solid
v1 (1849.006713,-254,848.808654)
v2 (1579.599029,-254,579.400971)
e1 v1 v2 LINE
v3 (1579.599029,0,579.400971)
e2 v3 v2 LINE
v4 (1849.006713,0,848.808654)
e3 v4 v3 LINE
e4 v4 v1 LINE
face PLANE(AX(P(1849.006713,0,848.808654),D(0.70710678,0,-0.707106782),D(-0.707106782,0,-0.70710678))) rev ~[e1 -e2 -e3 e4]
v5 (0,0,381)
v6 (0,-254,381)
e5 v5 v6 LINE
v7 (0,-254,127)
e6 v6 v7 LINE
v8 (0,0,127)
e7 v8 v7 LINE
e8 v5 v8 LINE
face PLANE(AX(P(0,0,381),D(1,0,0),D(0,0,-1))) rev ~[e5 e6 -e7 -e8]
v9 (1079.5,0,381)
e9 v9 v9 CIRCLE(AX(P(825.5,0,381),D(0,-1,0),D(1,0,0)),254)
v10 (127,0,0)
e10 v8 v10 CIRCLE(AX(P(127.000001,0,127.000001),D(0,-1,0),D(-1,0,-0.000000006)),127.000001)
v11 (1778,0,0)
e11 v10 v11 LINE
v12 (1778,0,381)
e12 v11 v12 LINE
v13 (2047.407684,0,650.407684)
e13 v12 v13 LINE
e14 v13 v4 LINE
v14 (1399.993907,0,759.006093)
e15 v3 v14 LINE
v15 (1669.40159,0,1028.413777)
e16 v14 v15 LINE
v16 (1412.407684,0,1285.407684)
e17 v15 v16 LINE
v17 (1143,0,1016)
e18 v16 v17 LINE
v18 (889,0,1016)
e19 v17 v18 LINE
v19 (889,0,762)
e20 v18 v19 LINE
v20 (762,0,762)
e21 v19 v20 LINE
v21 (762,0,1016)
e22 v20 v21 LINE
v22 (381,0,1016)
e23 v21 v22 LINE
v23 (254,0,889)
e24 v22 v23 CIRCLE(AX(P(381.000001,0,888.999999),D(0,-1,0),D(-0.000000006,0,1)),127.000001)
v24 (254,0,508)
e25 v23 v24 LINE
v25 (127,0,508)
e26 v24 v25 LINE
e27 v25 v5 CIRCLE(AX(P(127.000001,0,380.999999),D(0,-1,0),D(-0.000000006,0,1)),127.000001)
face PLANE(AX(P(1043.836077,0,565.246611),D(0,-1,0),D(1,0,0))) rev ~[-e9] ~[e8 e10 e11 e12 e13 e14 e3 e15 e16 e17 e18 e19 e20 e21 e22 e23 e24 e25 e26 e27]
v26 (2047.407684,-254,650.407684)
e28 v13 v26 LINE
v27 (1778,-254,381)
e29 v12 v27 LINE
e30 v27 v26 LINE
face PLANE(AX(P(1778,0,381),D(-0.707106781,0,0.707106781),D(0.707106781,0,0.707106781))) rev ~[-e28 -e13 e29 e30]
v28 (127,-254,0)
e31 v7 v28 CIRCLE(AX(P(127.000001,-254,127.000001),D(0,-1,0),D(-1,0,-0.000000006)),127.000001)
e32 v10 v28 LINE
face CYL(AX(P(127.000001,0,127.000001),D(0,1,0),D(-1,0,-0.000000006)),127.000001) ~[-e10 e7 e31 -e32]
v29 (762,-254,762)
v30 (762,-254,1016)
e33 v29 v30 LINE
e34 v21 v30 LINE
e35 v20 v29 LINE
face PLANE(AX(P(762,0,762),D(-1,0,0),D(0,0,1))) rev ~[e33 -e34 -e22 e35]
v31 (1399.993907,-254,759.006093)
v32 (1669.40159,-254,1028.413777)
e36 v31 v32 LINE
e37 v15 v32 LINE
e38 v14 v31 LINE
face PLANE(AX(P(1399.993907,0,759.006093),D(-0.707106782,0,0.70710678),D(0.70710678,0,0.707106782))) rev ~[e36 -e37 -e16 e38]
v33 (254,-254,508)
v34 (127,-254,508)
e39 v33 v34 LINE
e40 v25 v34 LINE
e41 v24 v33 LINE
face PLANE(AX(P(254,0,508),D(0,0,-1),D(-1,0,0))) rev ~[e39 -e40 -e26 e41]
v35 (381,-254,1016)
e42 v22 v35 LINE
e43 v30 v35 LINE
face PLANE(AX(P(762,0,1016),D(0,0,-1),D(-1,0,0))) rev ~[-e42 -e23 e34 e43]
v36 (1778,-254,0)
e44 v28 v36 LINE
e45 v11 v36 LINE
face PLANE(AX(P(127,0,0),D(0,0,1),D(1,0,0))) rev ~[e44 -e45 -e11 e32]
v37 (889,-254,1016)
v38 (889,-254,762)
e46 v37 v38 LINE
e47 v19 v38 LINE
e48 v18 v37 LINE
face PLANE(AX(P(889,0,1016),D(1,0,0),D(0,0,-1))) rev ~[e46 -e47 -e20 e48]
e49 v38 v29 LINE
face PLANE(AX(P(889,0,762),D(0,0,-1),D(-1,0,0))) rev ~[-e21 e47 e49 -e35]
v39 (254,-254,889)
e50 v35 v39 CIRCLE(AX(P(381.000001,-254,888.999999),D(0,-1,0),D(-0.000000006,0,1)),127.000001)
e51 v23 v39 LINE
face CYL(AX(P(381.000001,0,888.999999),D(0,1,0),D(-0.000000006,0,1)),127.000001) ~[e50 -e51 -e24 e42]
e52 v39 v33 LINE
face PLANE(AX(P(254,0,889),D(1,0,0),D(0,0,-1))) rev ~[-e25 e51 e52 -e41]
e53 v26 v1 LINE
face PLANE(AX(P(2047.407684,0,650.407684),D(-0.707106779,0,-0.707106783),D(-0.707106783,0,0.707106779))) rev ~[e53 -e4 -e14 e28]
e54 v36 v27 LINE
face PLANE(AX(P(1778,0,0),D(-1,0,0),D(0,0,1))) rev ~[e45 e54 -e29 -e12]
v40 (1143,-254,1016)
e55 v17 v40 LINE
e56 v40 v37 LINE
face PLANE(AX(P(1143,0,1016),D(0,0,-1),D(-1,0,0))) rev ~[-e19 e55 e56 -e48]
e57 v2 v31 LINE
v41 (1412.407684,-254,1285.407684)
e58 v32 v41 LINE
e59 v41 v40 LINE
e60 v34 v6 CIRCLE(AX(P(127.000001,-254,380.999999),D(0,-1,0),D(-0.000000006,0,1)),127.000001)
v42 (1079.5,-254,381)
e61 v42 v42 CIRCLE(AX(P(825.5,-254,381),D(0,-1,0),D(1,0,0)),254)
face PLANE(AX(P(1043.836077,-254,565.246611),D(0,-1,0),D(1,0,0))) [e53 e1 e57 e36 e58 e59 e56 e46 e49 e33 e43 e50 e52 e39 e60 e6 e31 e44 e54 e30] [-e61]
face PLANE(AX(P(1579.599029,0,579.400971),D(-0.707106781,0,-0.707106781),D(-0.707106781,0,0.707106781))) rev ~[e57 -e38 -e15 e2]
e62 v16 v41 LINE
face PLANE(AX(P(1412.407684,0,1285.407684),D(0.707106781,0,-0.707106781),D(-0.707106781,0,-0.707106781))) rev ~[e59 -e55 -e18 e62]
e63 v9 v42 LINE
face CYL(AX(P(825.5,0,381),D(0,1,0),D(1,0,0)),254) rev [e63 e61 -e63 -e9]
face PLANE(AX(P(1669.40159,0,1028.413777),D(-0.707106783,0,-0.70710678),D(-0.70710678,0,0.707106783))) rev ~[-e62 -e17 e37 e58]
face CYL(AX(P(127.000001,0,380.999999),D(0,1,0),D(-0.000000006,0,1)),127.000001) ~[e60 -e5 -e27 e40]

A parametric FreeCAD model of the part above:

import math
import FreeCAD as App
import Part
import Sketcher
from FreeCAD import Vector
Q = App.Units.Quantity

doc = App.newDocument("Part")
params = doc.addObject("Spreadsheet::Sheet", "Params")
for row, (alias, value) in enumerate([
    ("sketch1_diameter", "20 in"),
    ("sketch1_radius", "5 in"),
    ("sketch1_width", "65 in"),
    ("sketch1_width2", "10 in"),
    ("sketch1_width3", "5 in"),
    ("pad1_length", "10 in"),
], start=1):
    params.set(f"A{row}", alias)
    params.set(f"B{row}", "=" + value)
    params.setAlias(f"B{row}", alias)

body = doc.addObject("PartDesign::Body", "Body")

# Sketch on XZ plane
sketch1 = body.newObject("Sketcher::SketchObject", "Sketch")
sketch1.AttachmentSupport = (doc.getObject("XZ_Plane"), [""])
sketch1.MapMode = "FlatFace"
sketch1.addGeometry([
    Part.ArcOfCircle(Part.Circle(Vector(127.000001, 127.000001, 0), Vector(0, 0, 1), 127.000001), math.radians(-180), math.radians(-90)),  # 0
    Part.LineSegment(Vector(127, 0, 0), Vector(1778, 0, 0)),  # 1
    Part.LineSegment(Vector(1778, 0, 0), Vector(1778, 381, 0)),  # 2
    Part.LineSegment(Vector(1778, 381, 0), Vector(2047.407684, 650.407684, 0)),  # 3
    Part.LineSegment(Vector(2047.407684, 650.407684, 0), Vector(1849.006713, 848.808654, 0)),  # 4
    Part.LineSegment(Vector(1849.006713, 848.808654, 0), Vector(1579.599029, 579.400971, 0)),  # 5
    Part.LineSegment(Vector(1579.599029, 579.400971, 0), Vector(1399.993907, 759.006093, 0)),  # 6
    Part.LineSegment(Vector(1399.993907, 759.006093, 0), Vector(1669.40159, 1028.413777, 0)),  # 7
    Part.LineSegment(Vector(1669.40159, 1028.413777, 0), Vector(1412.407684, 1285.407684, 0)),  # 8
    Part.LineSegment(Vector(1412.407684, 1285.407684, 0), Vector(1143, 1016, 0)),  # 9
    Part.LineSegment(Vector(1143, 1016, 0), Vector(889, 1016, 0)),  # 10
    Part.LineSegment(Vector(889, 1016, 0), Vector(889, 762, 0)),  # 11
    Part.LineSegment(Vector(889, 762, 0), Vector(762, 762, 0)),  # 12
    Part.LineSegment(Vector(762, 762, 0), Vector(762, 1016, 0)),  # 13
    Part.LineSegment(Vector(762, 1016, 0), Vector(381, 1016, 0)),  # 14
    Part.ArcOfCircle(Part.Circle(Vector(381.000001, 888.999999, 0), Vector(0, 0, 1), 127.000001), math.radians(90), math.radians(180)),  # 15
    Part.LineSegment(Vector(254, 889, 0), Vector(254, 508, 0)),  # 16
    Part.LineSegment(Vector(254, 508, 0), Vector(127, 508, 0)),  # 17
    Part.ArcOfCircle(Part.Circle(Vector(127.000001, 380.999999, 0), Vector(0, 0, 1), 127.000001), math.radians(90), math.radians(180)),  # 18
    Part.LineSegment(Vector(0, 381, 0), Vector(0, 127, 0)),  # 19
    Part.Circle(Vector(825.5, 381, 0), Vector(0, 0, 1), 254),  # 20
], False)
sketch1.addConstraint([
    Sketcher.Constraint("Tangent", 0, 2, 1, 1),
    Sketcher.Constraint("Coincident", 1, 2, 2, 1),
    Sketcher.Constraint("Coincident", 2, 2, 3, 1),
    Sketcher.Constraint("Coincident", 3, 2, 4, 1),
    Sketcher.Constraint("Coincident", 4, 2, 5, 1),
    Sketcher.Constraint("Coincident", 5, 2, 6, 1),
    Sketcher.Constraint("Coincident", 6, 2, 7, 1),
    Sketcher.Constraint("Coincident", 7, 2, 8, 1),
    Sketcher.Constraint("Coincident", 8, 2, 9, 1),
    Sketcher.Constraint("Coincident", 9, 2, 10, 1),
    Sketcher.Constraint("Coincident", 10, 2, 11, 1),
    Sketcher.Constraint("Coincident", 11, 2, 12, 1),
    Sketcher.Constraint("Coincident", 12, 2, 13, 1),
    Sketcher.Constraint("Coincident", 13, 2, 14, 1),
    Sketcher.Constraint("Tangent", 14, 2, 15, 1),
    Sketcher.Constraint("Tangent", 15, 2, 16, 1),
    Sketcher.Constraint("Coincident", 16, 2, 17, 1),
    Sketcher.Constraint("Tangent", 17, 2, 18, 1),
    Sketcher.Constraint("Tangent", 18, 2, 19, 1),
    Sketcher.Constraint("Tangent", 19, 2, 0, 1),
    Sketcher.Constraint("Horizontal", 1),
    Sketcher.Constraint("Vertical", 2),
    Sketcher.Constraint("Horizontal", 10),
    Sketcher.Constraint("Vertical", 11),
    Sketcher.Constraint("Horizontal", 12),
    Sketcher.Constraint("Vertical", 13),
    Sketcher.Constraint("Horizontal", 14),
    Sketcher.Constraint("Vertical", 16),
    Sketcher.Constraint("Horizontal", 17),
    Sketcher.Constraint("Vertical", 19),
    Sketcher.Constraint("Equal", 0, 15),
    Sketcher.Constraint("Equal", 15, 18),
    Sketcher.Constraint("PointOnObject", 0, 2, -1),
    Sketcher.Constraint("PointOnObject", 18, 2, -2),
    Sketcher.Constraint("Perpendicular", 3, 4),
    Sketcher.Constraint("Perpendicular", 4, 5),
    Sketcher.Constraint("Perpendicular", 5, 6),
    Sketcher.Constraint("Perpendicular", 6, 7),
    Sketcher.Constraint("Perpendicular", 7, 8),
    Sketcher.Constraint("Perpendicular", 8, 9),
    Sketcher.Constraint("Horizontal", 18, 3, 20, 3),
    Sketcher.Constraint("Horizontal", 20, 3, 2, 2),
    Sketcher.Constraint("Horizontal", 10, 2, 13, 2),
    Sketcher.Constraint("Equal", 12, 17),
    Sketcher.Constraint("Equal", 14, 2),
    Sketcher.Constraint("Equal", 10, 11),
    Sketcher.Constraint("Equal", 2, 16),
    Sketcher.Constraint("Equal", 13, 19),
    Sketcher.Constraint("Equal", 3, 5),
    Sketcher.Constraint("Equal", 5, 7),
    Sketcher.Constraint("Equal", 7, 9),
    Sketcher.Constraint("Diameter", 20, Q("20 in")),
    Sketcher.Constraint("Radius", 0, Q("5 in")),
    Sketcher.Constraint("DistanceX", 1, 1, 1, 2, Q("65 in")),
    Sketcher.Constraint("DistanceX", 10, 2, 10, 1, Q("10 in")),
    Sketcher.Constraint("DistanceX", 12, 2, 12, 1, Q("5 in")),
    Sketcher.Constraint("Distance", 3, Q("15 in")),
    Sketcher.Constraint("Distance", 6, Q("10 in")),
    Sketcher.Constraint("DistanceX", -1, 1, 20, 3, Q("32.5 in")),
    Sketcher.Constraint("Distance", 8, Q("363.444268 mm")),
])
sketch1.setExpression("Constraints[51]", "Params.sketch1_diameter")
sketch1.setExpression("Constraints[52]", "Params.sketch1_radius")
sketch1.setExpression("Constraints[53]", "Params.sketch1_width")
sketch1.setExpression("Constraints[54]", "Params.sketch1_width2")
sketch1.setExpression("Constraints[55]", "Params.sketch1_width3")
pad1 = body.newObject("PartDesign::Pad", "Pad")
pad1.Profile = sketch1
pad1.setExpression("Length", "Params.pad1_length")

doc.recompute()
